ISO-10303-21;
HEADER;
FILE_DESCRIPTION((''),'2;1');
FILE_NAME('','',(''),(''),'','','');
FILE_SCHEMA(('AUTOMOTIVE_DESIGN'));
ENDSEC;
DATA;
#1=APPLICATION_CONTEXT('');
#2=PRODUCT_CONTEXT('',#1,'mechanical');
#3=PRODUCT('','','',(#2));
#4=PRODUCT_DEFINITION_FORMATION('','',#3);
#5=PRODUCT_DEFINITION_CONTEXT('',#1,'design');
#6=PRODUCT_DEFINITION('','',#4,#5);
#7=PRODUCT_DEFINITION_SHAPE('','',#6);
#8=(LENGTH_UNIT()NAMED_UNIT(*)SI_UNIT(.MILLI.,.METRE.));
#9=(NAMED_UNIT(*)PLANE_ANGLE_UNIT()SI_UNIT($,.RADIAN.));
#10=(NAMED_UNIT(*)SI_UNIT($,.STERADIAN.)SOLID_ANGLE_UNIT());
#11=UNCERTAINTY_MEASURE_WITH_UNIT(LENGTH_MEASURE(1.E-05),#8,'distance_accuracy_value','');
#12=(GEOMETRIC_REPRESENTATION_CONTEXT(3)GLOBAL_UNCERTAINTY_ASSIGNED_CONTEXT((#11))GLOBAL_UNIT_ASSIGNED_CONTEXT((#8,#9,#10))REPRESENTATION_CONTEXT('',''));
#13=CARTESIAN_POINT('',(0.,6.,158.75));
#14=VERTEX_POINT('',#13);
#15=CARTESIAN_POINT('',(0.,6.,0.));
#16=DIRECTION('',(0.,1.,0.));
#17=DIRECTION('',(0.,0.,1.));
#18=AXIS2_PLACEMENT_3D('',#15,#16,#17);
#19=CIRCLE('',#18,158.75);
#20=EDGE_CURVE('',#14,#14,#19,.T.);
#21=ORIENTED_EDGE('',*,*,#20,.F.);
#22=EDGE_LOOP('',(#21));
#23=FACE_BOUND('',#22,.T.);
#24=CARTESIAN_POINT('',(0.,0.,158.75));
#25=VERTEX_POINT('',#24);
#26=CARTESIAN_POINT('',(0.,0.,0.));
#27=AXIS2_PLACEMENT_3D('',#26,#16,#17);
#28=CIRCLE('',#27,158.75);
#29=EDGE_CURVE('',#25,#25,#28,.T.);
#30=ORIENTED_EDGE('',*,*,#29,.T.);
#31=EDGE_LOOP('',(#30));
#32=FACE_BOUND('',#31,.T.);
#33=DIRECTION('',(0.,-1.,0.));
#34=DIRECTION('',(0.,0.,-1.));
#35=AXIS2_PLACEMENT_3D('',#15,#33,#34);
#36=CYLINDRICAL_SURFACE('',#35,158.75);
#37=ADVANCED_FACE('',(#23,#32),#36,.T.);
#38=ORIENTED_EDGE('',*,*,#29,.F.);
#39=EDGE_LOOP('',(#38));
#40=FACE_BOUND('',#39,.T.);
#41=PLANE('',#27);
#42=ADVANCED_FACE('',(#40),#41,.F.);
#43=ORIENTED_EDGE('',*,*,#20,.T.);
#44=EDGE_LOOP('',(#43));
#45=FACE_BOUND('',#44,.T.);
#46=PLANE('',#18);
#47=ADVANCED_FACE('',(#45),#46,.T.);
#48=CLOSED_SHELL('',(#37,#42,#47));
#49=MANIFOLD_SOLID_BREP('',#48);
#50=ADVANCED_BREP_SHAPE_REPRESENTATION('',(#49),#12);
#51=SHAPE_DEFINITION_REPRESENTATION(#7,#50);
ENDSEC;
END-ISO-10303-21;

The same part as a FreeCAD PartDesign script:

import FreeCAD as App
import Part
import Sketcher

doc = App.newDocument("Part")
body = doc.addObject("PartDesign::Body", "Body")

sketch1 = body.newObject("Sketcher::SketchObject", "Sketch")
sketch1.AttachmentSupport = (doc.getObject("XZ_Plane"), [""])
sketch1.MapMode = "FlatFace"
sketch1.addGeometry(Part.Circle(App.Vector(0, 0, 0), App.Vector(0, 0, 1), 159), False)
sketch1.addConstraint(Sketcher.Constraint("Coincident", 0, 3, -1, 1))
sketch1.addConstraint(Sketcher.Constraint("Diameter", 0, 317.5))
pad1 = body.newObject("PartDesign::Pad", "Pad")
pad1.Profile = sketch1
pad1.Length = 6
pad1.Reversed = True

doc.recompute()
